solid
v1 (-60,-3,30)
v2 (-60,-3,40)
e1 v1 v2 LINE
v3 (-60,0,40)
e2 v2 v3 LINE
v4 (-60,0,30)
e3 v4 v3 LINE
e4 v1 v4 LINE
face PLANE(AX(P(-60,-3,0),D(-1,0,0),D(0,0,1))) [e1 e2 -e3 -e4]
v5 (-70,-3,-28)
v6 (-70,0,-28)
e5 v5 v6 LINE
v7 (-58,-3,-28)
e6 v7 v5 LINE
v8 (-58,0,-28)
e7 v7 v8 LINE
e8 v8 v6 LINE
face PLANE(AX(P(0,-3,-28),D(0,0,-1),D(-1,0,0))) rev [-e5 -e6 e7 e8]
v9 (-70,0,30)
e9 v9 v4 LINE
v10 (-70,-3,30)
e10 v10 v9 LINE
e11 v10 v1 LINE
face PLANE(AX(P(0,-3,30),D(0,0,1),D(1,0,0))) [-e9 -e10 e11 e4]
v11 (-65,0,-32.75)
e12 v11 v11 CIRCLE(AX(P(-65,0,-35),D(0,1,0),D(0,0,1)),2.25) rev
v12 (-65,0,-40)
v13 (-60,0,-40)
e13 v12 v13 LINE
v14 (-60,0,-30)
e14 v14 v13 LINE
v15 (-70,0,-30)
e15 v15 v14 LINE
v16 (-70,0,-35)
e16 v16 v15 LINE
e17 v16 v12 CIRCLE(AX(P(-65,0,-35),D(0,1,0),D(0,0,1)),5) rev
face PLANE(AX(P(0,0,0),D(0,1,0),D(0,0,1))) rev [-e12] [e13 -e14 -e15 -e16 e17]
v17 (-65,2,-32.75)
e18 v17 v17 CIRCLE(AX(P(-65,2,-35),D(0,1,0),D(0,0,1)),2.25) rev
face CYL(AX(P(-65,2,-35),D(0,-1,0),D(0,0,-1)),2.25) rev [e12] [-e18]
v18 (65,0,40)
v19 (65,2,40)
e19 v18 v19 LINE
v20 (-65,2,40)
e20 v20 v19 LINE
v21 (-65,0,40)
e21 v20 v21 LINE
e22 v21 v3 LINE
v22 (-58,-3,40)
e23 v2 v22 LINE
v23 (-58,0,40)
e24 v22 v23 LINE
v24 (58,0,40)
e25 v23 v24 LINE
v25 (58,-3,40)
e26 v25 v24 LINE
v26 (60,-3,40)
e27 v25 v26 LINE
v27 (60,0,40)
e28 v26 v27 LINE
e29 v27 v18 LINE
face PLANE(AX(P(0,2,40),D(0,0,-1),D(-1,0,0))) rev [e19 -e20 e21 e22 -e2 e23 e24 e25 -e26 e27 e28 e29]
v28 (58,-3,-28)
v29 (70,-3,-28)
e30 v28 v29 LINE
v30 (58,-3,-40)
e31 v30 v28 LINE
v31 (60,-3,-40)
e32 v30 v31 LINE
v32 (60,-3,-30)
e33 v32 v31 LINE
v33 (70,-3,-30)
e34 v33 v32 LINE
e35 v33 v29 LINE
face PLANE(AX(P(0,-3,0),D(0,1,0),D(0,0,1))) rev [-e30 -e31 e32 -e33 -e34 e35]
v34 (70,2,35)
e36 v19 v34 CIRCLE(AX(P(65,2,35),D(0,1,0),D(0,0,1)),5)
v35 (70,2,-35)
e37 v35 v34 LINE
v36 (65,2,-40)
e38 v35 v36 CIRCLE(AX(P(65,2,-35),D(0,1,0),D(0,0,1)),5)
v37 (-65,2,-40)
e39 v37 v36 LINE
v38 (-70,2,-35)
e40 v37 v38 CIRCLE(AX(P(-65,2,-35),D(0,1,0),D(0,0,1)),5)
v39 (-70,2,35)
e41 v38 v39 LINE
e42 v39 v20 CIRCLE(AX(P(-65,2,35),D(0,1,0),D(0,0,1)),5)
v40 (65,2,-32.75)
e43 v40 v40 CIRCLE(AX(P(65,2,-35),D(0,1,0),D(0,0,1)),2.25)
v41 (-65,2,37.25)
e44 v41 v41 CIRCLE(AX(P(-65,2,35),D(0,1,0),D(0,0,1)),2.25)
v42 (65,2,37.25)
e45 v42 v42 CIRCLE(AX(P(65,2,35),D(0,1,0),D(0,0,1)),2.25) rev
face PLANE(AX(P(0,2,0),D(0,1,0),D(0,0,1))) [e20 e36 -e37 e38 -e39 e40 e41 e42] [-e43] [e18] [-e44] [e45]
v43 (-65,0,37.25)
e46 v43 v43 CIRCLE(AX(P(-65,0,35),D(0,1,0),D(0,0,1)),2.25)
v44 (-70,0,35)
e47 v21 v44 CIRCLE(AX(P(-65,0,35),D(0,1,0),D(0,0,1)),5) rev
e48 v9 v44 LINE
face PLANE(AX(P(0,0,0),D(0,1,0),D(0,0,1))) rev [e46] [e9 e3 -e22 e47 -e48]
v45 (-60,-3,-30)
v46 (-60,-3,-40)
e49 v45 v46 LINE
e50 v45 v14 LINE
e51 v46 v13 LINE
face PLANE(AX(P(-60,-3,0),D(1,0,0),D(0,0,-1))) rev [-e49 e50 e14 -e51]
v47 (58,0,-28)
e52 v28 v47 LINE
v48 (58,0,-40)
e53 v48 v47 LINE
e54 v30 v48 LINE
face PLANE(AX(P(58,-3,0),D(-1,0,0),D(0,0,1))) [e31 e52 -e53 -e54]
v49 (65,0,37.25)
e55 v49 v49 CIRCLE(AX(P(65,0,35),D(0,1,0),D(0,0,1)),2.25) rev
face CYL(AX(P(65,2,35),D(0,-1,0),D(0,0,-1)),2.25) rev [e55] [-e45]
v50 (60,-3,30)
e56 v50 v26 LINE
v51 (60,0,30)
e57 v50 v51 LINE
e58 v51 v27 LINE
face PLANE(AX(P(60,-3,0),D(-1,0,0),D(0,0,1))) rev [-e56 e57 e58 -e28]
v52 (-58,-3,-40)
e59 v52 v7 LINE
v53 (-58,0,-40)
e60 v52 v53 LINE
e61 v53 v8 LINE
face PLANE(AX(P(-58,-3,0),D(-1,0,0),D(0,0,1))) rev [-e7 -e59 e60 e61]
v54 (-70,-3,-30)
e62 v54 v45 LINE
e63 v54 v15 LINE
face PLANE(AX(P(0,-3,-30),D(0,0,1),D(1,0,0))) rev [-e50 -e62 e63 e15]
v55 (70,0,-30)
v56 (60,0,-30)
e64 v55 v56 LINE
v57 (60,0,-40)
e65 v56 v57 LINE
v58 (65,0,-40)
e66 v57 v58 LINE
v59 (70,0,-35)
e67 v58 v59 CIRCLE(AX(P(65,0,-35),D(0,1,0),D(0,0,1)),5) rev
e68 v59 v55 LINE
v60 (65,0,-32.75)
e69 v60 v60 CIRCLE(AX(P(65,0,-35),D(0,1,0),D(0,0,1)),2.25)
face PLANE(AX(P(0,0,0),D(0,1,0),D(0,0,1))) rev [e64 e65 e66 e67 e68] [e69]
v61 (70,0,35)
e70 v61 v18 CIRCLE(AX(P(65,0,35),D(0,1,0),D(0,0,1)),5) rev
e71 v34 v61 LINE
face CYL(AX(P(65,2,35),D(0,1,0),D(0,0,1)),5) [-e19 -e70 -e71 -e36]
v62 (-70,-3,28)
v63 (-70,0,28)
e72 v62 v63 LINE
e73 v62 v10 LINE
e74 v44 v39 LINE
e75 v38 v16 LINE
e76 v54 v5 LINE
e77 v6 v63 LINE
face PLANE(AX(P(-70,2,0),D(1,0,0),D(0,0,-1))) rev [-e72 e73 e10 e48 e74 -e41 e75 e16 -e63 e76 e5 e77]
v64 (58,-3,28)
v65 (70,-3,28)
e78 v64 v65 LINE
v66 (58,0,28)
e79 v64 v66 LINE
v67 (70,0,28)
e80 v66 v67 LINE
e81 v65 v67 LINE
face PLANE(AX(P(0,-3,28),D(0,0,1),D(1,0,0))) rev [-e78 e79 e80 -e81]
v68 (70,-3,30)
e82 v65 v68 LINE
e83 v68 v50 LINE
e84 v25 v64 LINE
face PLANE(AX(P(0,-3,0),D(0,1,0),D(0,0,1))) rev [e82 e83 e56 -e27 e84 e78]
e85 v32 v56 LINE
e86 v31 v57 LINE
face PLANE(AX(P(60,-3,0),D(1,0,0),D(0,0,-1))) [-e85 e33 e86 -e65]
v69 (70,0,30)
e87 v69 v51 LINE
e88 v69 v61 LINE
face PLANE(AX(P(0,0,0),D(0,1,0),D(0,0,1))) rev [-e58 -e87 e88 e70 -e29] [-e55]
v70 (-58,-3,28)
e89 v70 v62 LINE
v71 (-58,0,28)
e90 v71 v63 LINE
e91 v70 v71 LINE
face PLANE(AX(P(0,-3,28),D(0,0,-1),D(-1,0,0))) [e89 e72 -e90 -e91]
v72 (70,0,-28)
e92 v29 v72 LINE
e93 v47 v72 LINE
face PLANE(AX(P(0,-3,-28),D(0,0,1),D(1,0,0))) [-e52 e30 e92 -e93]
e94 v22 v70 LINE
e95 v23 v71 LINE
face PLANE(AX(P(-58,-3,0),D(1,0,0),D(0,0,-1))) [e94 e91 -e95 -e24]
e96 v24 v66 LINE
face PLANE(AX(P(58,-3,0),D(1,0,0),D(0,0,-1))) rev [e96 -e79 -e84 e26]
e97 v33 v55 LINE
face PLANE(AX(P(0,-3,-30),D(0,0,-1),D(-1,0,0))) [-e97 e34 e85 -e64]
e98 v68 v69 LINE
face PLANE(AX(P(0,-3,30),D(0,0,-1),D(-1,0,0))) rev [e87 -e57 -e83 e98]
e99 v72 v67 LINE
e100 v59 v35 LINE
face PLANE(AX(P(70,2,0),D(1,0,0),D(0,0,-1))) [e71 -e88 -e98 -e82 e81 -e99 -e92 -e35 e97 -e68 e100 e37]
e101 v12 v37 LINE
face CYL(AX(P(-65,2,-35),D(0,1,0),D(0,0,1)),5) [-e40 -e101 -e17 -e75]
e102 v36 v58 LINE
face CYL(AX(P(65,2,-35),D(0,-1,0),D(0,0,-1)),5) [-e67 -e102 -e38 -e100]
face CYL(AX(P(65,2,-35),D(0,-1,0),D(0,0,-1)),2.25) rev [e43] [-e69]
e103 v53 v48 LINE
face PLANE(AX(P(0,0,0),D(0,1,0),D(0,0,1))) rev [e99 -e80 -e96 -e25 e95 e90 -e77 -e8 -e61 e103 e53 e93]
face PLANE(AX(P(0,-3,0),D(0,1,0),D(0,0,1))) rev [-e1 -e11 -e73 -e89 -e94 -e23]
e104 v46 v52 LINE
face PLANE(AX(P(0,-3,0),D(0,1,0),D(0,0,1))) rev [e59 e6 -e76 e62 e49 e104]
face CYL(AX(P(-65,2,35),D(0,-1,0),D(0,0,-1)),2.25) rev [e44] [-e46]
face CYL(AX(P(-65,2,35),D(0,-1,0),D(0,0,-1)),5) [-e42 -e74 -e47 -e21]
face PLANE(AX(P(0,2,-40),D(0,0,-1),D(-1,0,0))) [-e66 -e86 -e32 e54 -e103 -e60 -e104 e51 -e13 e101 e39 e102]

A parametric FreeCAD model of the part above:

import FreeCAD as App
import Part
import Sketcher
from FreeCAD import Vector


def edges_at(feature, points):
    """Names of the edges that pass closest to the given points."""
    edges = feature.Shape.Edges
    near = lambda p: min(range(len(edges)), key=lambda i: edges[i].distToShape(Part.Vertex(*p))[0])
    return sorted({f"Edge{near(p) + 1}" for p in points})

doc = App.newDocument("Part")
body = doc.addObject("PartDesign::Body", "Body")

# Sketch on XZ plane
sketch1 = doc.addObject("Sketcher::SketchObject", "Sketch")
body.addObject(sketch1)
sketch1.AttachmentSupport = (doc.XZ_Plane, [""])
sketch1.MapMode = "FlatFace"
sketch1.addGeometry([
    Part.LineSegment(Vector(70, -40, 0), Vector(-70, -40, 0)),  # 0
    Part.LineSegment(Vector(-70, -40, 0), Vector(-70, 40, 0)),  # 1
    Part.LineSegment(Vector(-70, 40, 0), Vector(70, 40, 0)),  # 2
    Part.LineSegment(Vector(70, 40, 0), Vector(70, -40, 0)),  # 3
    Part.Circle(Vector(65, -35, 0), Vector(0, 0, 1), 2.2),  # 4
    Part.Circle(Vector(-65, -35, 0), Vector(0, 0, 1), 2.2),  # 5
    Part.Circle(Vector(-65, 35, 0), Vector(0, 0, 1), 2.2),  # 6
    Part.Circle(Vector(65, 35, 0), Vector(0, 0, 1), 2.2),  # 7
], False)
sketch1.addConstraint([
    Sketcher.Constraint("Coincident", 0, 2, 1, 1),
    Sketcher.Constraint("Coincident", 1, 2, 2, 1),
    Sketcher.Constraint("Coincident", 2, 2, 3, 1),
    Sketcher.Constraint("Coincident", 3, 2, 0, 1),
    Sketcher.Constraint("Horizontal", 0),
    Sketcher.Constraint("Vertical", 1),
    Sketcher.Constraint("Horizontal", 2),
    Sketcher.Constraint("Vertical", 3),
    Sketcher.Constraint("Equal", 4, 5),
    Sketcher.Constraint("Equal", 5, 6),
    Sketcher.Constraint("Equal", 6, 7),
    Sketcher.Constraint("Symmetric", 4, 3, 6, 3, -1, 1),
    Sketcher.Constraint("Symmetric", 5, 3, 7, 3, -1, 1),
    Sketcher.Constraint("Symmetric", 0, 2, 2, 2, -1, 1),
    Sketcher.Constraint("Symmetric", 4, 3, 5, 3, -2),
    Sketcher.Constraint("Diameter", 4, 4.5),
    Sketcher.Constraint("DistanceX", 0, 2, 0, 1, 140.0),
    Sketcher.Constraint("DistanceY", 1, 1, 1, 2, 80.0),
    Sketcher.Constraint("DistanceX", -1, 1, 4, 3, 65.0),
    Sketcher.Constraint("DistanceY", 4, 3, -1, 1, 35.0),
])
pad1 = doc.addObject("PartDesign::Pad", "Pad")
body.addObject(pad1)
pad1.Profile = sketch1
pad1.Length = 2
pad1.Reversed = True

# Sketch on XZ plane
sketch2 = doc.addObject("Sketcher::SketchObject", "Sketch001")
body.addObject(sketch2)
sketch2.AttachmentSupport = (doc.XZ_Plane, [""])
sketch2.MapMode = "FlatFace"
sketch2.addGeometry([
    Part.LineSegment(Vector(-60, 40, 0), Vector(-58, 40, 0)),  # 0
    Part.LineSegment(Vector(-58, 40, 0), Vector(-58, 28, 0)),  # 1
    Part.LineSegment(Vector(-58, 28, 0), Vector(-70, 28, 0)),  # 2
    Part.LineSegment(Vector(-70, 28, 0), Vector(-70, 30, 0)),  # 3
    Part.LineSegment(Vector(-70, 30, 0), Vector(-60, 30, 0)),  # 4
    Part.LineSegment(Vector(-60, 30, 0), Vector(-60, 40, 0)),  # 5
    Part.LineSegment(Vector(70, 30, 0), Vector(70, 28, 0)),  # 6
    Part.LineSegment(Vector(70, 28, 0), Vector(58, 28, 0)),  # 7
    Part.LineSegment(Vector(58, 28, 0), Vector(58, 40, 0)),  # 8
    Part.LineSegment(Vector(58, 40, 0), Vector(60, 40, 0)),  # 9
    Part.LineSegment(Vector(60, 40, 0), Vector(60, 30, 0)),  # 10
    Part.LineSegment(Vector(60, 30, 0), Vector(70, 30, 0)),  # 11
    Part.LineSegment(Vector(70, -28, 0), Vector(70, -30, 0)),  # 12
    Part.LineSegment(Vector(70, -30, 0), Vector(60, -30, 0)),  # 13
    Part.LineSegment(Vector(60, -30, 0), Vector(60, -40, 0)),  # 14
    Part.LineSegment(Vector(60, -40, 0), Vector(58, -40, 0)),  # 15
    Part.LineSegment(Vector(58, -40, 0), Vector(58, -28, 0)),  # 16
    Part.LineSegment(Vector(58, -28, 0), Vector(70, -28, 0)),  # 17
    Part.LineSegment(Vector(-58, -28, 0), Vector(-58, -40, 0)),  # 18
    Part.LineSegment(Vector(-58, -40, 0), Vector(-60, -40, 0)),  # 19
    Part.LineSegment(Vector(-60, -40, 0), Vector(-60, -30, 0)),  # 20
    Part.LineSegment(Vector(-60, -30, 0), Vector(-70, -30, 0)),  # 21
    Part.LineSegment(Vector(-70, -30, 0), Vector(-70, -28, 0)),  # 22
    Part.LineSegment(Vector(-70, -28, 0), Vector(-58, -28, 0)),  # 23
], False)
sketch2.addConstraint([
    Sketcher.Constraint("Coincident", 0, 2, 1, 1),
    Sketcher.Constraint("Coincident", 1, 2, 2, 1),
    Sketcher.Constraint("Coincident", 2, 2, 3, 1),
    Sketcher.Constraint("Coincident", 3, 2, 4, 1),
    Sketcher.Constraint("Coincident", 4, 2, 5, 1),
    Sketcher.Constraint("Coincident", 5, 2, 0, 1),
    Sketcher.Constraint("Coincident", 6, 2, 7, 1),
    Sketcher.Constraint("Coincident", 7, 2, 8, 1),
    Sketcher.Constraint("Coincident", 8, 2, 9, 1),
    Sketcher.Constraint("Coincident", 9, 2, 10, 1),
    Sketcher.Constraint("Coincident", 10, 2, 11, 1),
    Sketcher.Constraint("Coincident", 11, 2, 6, 1),
    Sketcher.Constraint("Coincident", 12, 2, 13, 1),
    Sketcher.Constraint("Coincident", 13, 2, 14, 1),
    Sketcher.Constraint("Coincident", 14, 2, 15, 1),
    Sketcher.Constraint("Coincident", 15, 2, 16, 1),
    Sketcher.Constraint("Coincident", 16, 2, 17, 1),
    Sketcher.Constraint("Coincident", 17, 2, 12, 1),
    Sketcher.Constraint("Coincident", 18, 2, 19, 1),
    Sketcher.Constraint("Coincident", 19, 2, 20, 1),
    Sketcher.Constraint("Coincident", 20, 2, 21, 1),
    Sketcher.Constraint("Coincident", 21, 2, 22, 1),
    Sketcher.Constraint("Coincident", 22, 2, 23, 1),
    Sketcher.Constraint("Coincident", 23, 2, 18, 1),
    Sketcher.Constraint("Horizontal", 0),
    Sketcher.Constraint("Vertical", 1),
    Sketcher.Constraint("Horizontal", 2),
    Sketcher.Constraint("Vertical", 3),
    Sketcher.Constraint("Horizontal", 4),
    Sketcher.Constraint("Vertical", 5),
    Sketcher.Constraint("Vertical", 6),
    Sketcher.Constraint("Horizontal", 7),
    Sketcher.Constraint("Vertical", 8),
    Sketcher.Constraint("Horizontal", 9),
    Sketcher.Constraint("Vertical", 10),
    Sketcher.Constraint("Horizontal", 11),
    Sketcher.Constraint("Vertical", 12),
    Sketcher.Constraint("Horizontal", 13),
    Sketcher.Constraint("Vertical", 14),
    Sketcher.Constraint("Horizontal", 15),
    Sketcher.Constraint("Vertical", 16),
    Sketcher.Constraint("Horizontal", 17),
    Sketcher.Constraint("Vertical", 18),
    Sketcher.Constraint("Horizontal", 19),
    Sketcher.Constraint("Vertical", 20),
    Sketcher.Constraint("Horizontal", 21),
    Sketcher.Constraint("Vertical", 22),
    Sketcher.Constraint("Horizontal", 23),
    Sketcher.Constraint("Symmetric", 3, 2, 12, 2, -1, 1),
    Sketcher.Constraint("Symmetric", 5, 2, 14, 2, -1, 1),
    Sketcher.Constraint("Symmetric", 1, 2, 16, 2, -1, 1),
    Sketcher.Constraint("Symmetric", 8, 2, 18, 2, -1, 1),
    Sketcher.Constraint("Symmetric", 10, 2, 20, 2, -1, 1),
    Sketcher.Constraint("Symmetric", 6, 2, 22, 2, -1, 1),
    Sketcher.Constraint("Symmetric", 2, 2, 6, 2, -2),
    Sketcher.Constraint("Symmetric", 0, 2, 8, 2, -2),
    Sketcher.Constraint("Symmetric", 4, 2, 10, 2, -2),
    Sketcher.Constraint("Equal", 23, 1),
    Sketcher.Constraint("Equal", 19, 3),
    Sketcher.Constraint("DistanceX", 0, 1, 0, 2, 2.0),
    Sketcher.Constraint("DistanceX", 2, 2, 2, 1, 12.0),
    Sketcher.Constraint("DistanceX", 0, 2, -1, 1, 58.0),
    Sketcher.Constraint("DistanceY", -1, 1, 0, 2, 40.0),
])
pad2 = doc.addObject("PartDesign::Pad", "Pad001")
body.addObject(pad2)
pad2.Profile = sketch2
pad2.Length = 3
doc.recompute()

fillet = doc.addObject("PartDesign::Fillet", "Fillet")
body.addObject(fillet)
fillet.Base = (pad2, edges_at(pad2, [
    (70, 1, 40),
    (-70, 1, 40),
    (-70, 1, -40),
    (70, 1, -40),
]))
fillet.Radius = 5

doc.recompute()
